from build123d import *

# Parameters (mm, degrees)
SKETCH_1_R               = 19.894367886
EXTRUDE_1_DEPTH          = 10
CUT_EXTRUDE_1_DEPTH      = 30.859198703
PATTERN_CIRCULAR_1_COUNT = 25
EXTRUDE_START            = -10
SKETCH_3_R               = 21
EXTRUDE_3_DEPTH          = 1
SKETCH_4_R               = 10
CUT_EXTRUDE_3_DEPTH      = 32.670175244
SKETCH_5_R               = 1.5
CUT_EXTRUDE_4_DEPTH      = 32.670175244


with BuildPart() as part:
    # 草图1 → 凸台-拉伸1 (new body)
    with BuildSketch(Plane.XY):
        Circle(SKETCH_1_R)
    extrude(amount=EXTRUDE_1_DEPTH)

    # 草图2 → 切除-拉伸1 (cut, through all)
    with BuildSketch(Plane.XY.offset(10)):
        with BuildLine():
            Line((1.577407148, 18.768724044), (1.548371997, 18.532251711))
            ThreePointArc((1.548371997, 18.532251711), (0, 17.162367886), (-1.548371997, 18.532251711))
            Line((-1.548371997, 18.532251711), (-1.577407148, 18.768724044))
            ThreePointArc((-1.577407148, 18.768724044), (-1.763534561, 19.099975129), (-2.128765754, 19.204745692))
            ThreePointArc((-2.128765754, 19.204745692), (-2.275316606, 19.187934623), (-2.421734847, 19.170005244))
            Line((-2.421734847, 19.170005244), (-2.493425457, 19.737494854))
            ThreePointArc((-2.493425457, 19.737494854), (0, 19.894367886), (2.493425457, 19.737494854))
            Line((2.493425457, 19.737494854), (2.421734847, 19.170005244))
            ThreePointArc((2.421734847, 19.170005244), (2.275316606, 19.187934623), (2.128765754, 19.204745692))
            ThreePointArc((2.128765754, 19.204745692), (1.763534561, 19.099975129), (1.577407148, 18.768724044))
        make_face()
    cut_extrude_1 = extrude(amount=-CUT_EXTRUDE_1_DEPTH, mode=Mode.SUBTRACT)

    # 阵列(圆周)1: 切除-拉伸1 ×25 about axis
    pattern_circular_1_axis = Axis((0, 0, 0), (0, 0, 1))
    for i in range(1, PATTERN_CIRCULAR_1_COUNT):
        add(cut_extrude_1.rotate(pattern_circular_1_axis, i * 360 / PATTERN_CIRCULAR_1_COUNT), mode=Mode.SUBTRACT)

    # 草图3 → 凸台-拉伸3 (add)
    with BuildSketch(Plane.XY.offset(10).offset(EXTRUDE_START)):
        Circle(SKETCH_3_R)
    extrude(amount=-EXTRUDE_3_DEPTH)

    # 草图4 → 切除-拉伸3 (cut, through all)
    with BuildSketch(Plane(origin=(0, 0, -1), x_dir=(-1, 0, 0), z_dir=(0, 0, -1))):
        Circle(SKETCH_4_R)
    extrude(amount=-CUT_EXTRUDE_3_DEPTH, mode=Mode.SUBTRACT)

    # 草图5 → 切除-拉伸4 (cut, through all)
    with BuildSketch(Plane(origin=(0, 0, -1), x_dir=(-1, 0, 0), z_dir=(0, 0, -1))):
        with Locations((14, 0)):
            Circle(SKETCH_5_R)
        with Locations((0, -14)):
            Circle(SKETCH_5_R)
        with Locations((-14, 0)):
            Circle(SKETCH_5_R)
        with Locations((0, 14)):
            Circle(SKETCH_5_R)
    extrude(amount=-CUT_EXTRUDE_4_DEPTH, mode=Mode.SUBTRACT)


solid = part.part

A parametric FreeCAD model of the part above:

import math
import FreeCAD as App
import Part
import Sketcher
Q = App.Units.Quantity

doc = App.newDocument("Part")
body = doc.addObject("PartDesign::Body", "Body")

# Sketch on XY plane
sketch1 = doc.addObject("Sketcher::SketchObject", "Sketch")
body.addObject(sketch1)
sketch1.AttachmentSupport = (doc.XY_Plane, [""])
sketch1.MapMode = "FlatFace"
sketch1.addGeometry(Part.Circle(App.Vector(0, 0, 0), App.Vector(0, 0, 1), 19.894368), False)
sketch1.addConstraint([
    Sketcher.Constraint("Coincident", 0, 3, -1, 1),
    Sketcher.Constraint("Diameter", 0, Q("39.788736 mm")),
])
pad1 = doc.addObject("PartDesign::Pad", "Pad")
body.addObject(pad1)
pad1.Profile = sketch1
pad1.Length = 10

# Sketch on XY plane
sketch2 = doc.addObject("Sketcher::SketchObject", "Sketch001")
body.addObject(sketch2)
sketch2.AttachmentSupport = (doc.XY_Plane, [""])
sketch2.MapMode = "FlatFace"
sketch2.AttachmentOffset = App.Placement(App.Vector(0, 0, 10), App.Rotation())
sketch2.addGeometry([
    Part.LineSegment(App.Vector(1.548372, 18.532252, 0), App.Vector(1.577407, 18.768724, 0)),  # 0
    Part.ArcOfCircle(Part.Circle(App.Vector(2.07368, 18.707789, 0), App.Vector(0, 0, 1), 0.5), math.radians(83.674823), math.radians(173)),  # 1
    Part.ArcOfCircle(Part.Circle(App.Vector(0.000003, 0.000024, 0), App.Vector(0, 0, 1), 19.322344), math.radians(82.799999), math.radians(83.674824)),  # 2
    Part.LineSegment(App.Vector(2.421735, 19.170005, 0), App.Vector(2.493425, 19.737495, 0)),  # 3
    Part.ArcOfCircle(Part.Circle(App.Vector(0, 0, 0), App.Vector(0, 0, 1), 19.894368), math.radians(82.8), math.radians(97.2)),  # 4
    Part.LineSegment(App.Vector(-2.493425, 19.737495, 0), App.Vector(-2.421735, 19.170005, 0)),  # 5
    Part.ArcOfCircle(Part.Circle(App.Vector(-0.000003, 0.000024, 0), App.Vector(0, 0, 1), 19.322344), math.radians(96.325176), math.radians(97.200001)),  # 6
    Part.ArcOfCircle(Part.Circle(App.Vector(-2.07368, 18.707789, 0), App.Vector(0, 0, 1), 0.5), math.radians(7), math.radians(96.325177)),  # 7
    Part.LineSegment(App.Vector(-1.577407, 18.768724, 0), App.Vector(-1.548372, 18.532252, 0)),  # 8
    Part.ArcOfCircle(Part.Circle(App.Vector(0, 18.722368, 0), App.Vector(0, 0, 1), 1.56), math.radians(-173), math.radians(-7)),  # 9
], False)
sketch2.addConstraint([
    Sketcher.Constraint("Tangent", 0, 2, 1, 2),
    Sketcher.Constraint("Tangent", 1, 1, 2, 2),
    Sketcher.Constraint("Coincident", 2, 1, 3, 1),
    Sketcher.Constraint("Coincident", 3, 2, 4, 1),
    Sketcher.Constraint("Coincident", 4, 2, 5, 1),
    Sketcher.Constraint("Coincident", 5, 2, 6, 2),
    Sketcher.Constraint("Tangent", 6, 1, 7, 2),
    Sketcher.Constraint("Tangent", 7, 1, 8, 1),
    Sketcher.Constraint("Tangent", 8, 2, 9, 1),
    Sketcher.Constraint("Tangent", 9, 2, 0, 1),
    Sketcher.Constraint("Coincident", 4, 3, -1, 1),
    Sketcher.Constraint("Coincident", 6, 3, 2, 3),
    Sketcher.Constraint("Equal", 2, 6),
    Sketcher.Constraint("Equal", 1, 7),
    Sketcher.Constraint("Symmetric", 1, 3, 7, 3, -2),
    Sketcher.Constraint("PointOnObject", 9, 3, -2),
    Sketcher.Constraint("Horizontal", 3, 2, 4, 2),
    Sketcher.Constraint("Horizontal", 2, 1, 5, 2),
    Sketcher.Constraint("Radius", 1, Q("0.5 mm")),
    Sketcher.Constraint("Angle", 0, Q("83 deg")),
    Sketcher.Constraint("Radius", 9, Q("1.56 mm")),
    Sketcher.Constraint("Angle", 3, Q("82.8 deg")),
    Sketcher.Constraint("Radius", 4, Q("19.894368 mm")),
    Sketcher.Constraint("Distance", 3, Q("0.572 mm")),
    Sketcher.Constraint("Radius", 2, Q("19.322344 mm")),
    Sketcher.Constraint("DistanceY", 2, 3, 0, 2, Q("18.7687 mm")),
    Sketcher.Constraint("DistanceX", 1, 1, 2, 1, Q("0.292969 mm")),
])
pocket1 = doc.addObject("PartDesign::Pocket", "Pocket")
body.addObject(pocket1)
pocket1.Profile = sketch2
pocket1.Type = "ThroughAll"
doc.recompute()

polarpattern = doc.addObject("PartDesign::PolarPattern", "PolarPattern")
body.addObject(polarpattern)
polarpattern.Originals = [pocket1]
polarpattern.Axis = (doc.Z_Axis, [""])
polarpattern.Angle = 360
polarpattern.Occurrences = 25
body.Tip = polarpattern

# Sketch on XY plane
sketch3 = doc.addObject("Sketcher::SketchObject", "Sketch002")
body.addObject(sketch3)
sketch3.AttachmentSupport = (doc.XY_Plane, [""])
sketch3.MapMode = "FlatFace"
sketch3.addGeometry(Part.Circle(App.Vector(0, 0, 0), App.Vector(0, 0, 1), 21), False)
sketch3.addConstraint([
    Sketcher.Constraint("Coincident", 0, 3, -1, 1),
    Sketcher.Constraint("Diameter", 0, Q("42 mm")),
])
pad2 = doc.addObject("PartDesign::Pad", "Pad001")
body.addObject(pad2)
pad2.Profile = sketch3
pad2.Length = 1
pad2.Reversed = True

# Sketch on XY plane
sketch4 = doc.addObject("Sketcher::SketchObject", "Sketch003")
body.addObject(sketch4)
sketch4.AttachmentSupport = (doc.XY_Plane, [""])
sketch4.MapMode = "FlatFace"
sketch4.AttachmentOffset = App.Placement(App.Vector(0, 0, -1), App.Rotation())
sketch4.addGeometry(Part.Circle(App.Vector(0, 0, 0), App.Vector(0, 0, 1), 10), False)
sketch4.addConstraint([
    Sketcher.Constraint("Coincident", 0, 3, -1, 1),
    Sketcher.Constraint("Diameter", 0, Q("20 mm")),
])
pocket2 = doc.addObject("PartDesign::Pocket", "Pocket001")
body.addObject(pocket2)
pocket2.Profile = sketch4
pocket2.Type = "ThroughAll"
pocket2.Reversed = True

# Sketch on XY plane
sketch5 = doc.addObject("Sketcher::SketchObject", "Sketch004")
body.addObject(sketch5)
sketch5.AttachmentSupport = (doc.XY_Plane, [""])
sketch5.MapMode = "FlatFace"
sketch5.AttachmentOffset = App.Placement(App.Vector(0, 0, -1), App.Rotation())
sketch5.addGeometry([
    Part.Circle(App.Vector(-14, 0, 0), App.Vector(0, 0, 1), 1.5),
    Part.Circle(App.Vector(0, -14, 0), App.Vector(0, 0, 1), 1.5),
    Part.Circle(App.Vector(14, 0, 0), App.Vector(0, 0, 1), 1.5),
    Part.Circle(App.Vector(0, 14, 0), App.Vector(0, 0, 1), 1.5),
], False)
sketch5.addConstraint([
    Sketcher.Constraint("Equal", 0, 1),
    Sketcher.Constraint("Equal", 1, 2),
    Sketcher.Constraint("Equal", 2, 3),
    Sketcher.Constraint("Symmetric", 0, 3, 2, 3, -1, 1),
    Sketcher.Constraint("Symmetric", 1, 3, 3, 3, -1, 1),
    Sketcher.Constraint("PointOnObject", 0, 3, -1),
    Sketcher.Constraint("PointOnObject", 1, 3, -2),
    Sketcher.Constraint("Diameter", 0, Q("3 mm")),
    Sketcher.Constraint("DistanceX", 0, 3, -1, 1, Q("14 mm")),
    Sketcher.Constraint("DistanceY", 1, 3, -1, 1, Q("14 mm")),
])
pocket3 = doc.addObject("PartDesign::Pocket", "Pocket002")
body.addObject(pocket3)
pocket3.Profile = sketch5
pocket3.Type = "ThroughAll"
pocket3.Reversed = True

doc.recompute()
